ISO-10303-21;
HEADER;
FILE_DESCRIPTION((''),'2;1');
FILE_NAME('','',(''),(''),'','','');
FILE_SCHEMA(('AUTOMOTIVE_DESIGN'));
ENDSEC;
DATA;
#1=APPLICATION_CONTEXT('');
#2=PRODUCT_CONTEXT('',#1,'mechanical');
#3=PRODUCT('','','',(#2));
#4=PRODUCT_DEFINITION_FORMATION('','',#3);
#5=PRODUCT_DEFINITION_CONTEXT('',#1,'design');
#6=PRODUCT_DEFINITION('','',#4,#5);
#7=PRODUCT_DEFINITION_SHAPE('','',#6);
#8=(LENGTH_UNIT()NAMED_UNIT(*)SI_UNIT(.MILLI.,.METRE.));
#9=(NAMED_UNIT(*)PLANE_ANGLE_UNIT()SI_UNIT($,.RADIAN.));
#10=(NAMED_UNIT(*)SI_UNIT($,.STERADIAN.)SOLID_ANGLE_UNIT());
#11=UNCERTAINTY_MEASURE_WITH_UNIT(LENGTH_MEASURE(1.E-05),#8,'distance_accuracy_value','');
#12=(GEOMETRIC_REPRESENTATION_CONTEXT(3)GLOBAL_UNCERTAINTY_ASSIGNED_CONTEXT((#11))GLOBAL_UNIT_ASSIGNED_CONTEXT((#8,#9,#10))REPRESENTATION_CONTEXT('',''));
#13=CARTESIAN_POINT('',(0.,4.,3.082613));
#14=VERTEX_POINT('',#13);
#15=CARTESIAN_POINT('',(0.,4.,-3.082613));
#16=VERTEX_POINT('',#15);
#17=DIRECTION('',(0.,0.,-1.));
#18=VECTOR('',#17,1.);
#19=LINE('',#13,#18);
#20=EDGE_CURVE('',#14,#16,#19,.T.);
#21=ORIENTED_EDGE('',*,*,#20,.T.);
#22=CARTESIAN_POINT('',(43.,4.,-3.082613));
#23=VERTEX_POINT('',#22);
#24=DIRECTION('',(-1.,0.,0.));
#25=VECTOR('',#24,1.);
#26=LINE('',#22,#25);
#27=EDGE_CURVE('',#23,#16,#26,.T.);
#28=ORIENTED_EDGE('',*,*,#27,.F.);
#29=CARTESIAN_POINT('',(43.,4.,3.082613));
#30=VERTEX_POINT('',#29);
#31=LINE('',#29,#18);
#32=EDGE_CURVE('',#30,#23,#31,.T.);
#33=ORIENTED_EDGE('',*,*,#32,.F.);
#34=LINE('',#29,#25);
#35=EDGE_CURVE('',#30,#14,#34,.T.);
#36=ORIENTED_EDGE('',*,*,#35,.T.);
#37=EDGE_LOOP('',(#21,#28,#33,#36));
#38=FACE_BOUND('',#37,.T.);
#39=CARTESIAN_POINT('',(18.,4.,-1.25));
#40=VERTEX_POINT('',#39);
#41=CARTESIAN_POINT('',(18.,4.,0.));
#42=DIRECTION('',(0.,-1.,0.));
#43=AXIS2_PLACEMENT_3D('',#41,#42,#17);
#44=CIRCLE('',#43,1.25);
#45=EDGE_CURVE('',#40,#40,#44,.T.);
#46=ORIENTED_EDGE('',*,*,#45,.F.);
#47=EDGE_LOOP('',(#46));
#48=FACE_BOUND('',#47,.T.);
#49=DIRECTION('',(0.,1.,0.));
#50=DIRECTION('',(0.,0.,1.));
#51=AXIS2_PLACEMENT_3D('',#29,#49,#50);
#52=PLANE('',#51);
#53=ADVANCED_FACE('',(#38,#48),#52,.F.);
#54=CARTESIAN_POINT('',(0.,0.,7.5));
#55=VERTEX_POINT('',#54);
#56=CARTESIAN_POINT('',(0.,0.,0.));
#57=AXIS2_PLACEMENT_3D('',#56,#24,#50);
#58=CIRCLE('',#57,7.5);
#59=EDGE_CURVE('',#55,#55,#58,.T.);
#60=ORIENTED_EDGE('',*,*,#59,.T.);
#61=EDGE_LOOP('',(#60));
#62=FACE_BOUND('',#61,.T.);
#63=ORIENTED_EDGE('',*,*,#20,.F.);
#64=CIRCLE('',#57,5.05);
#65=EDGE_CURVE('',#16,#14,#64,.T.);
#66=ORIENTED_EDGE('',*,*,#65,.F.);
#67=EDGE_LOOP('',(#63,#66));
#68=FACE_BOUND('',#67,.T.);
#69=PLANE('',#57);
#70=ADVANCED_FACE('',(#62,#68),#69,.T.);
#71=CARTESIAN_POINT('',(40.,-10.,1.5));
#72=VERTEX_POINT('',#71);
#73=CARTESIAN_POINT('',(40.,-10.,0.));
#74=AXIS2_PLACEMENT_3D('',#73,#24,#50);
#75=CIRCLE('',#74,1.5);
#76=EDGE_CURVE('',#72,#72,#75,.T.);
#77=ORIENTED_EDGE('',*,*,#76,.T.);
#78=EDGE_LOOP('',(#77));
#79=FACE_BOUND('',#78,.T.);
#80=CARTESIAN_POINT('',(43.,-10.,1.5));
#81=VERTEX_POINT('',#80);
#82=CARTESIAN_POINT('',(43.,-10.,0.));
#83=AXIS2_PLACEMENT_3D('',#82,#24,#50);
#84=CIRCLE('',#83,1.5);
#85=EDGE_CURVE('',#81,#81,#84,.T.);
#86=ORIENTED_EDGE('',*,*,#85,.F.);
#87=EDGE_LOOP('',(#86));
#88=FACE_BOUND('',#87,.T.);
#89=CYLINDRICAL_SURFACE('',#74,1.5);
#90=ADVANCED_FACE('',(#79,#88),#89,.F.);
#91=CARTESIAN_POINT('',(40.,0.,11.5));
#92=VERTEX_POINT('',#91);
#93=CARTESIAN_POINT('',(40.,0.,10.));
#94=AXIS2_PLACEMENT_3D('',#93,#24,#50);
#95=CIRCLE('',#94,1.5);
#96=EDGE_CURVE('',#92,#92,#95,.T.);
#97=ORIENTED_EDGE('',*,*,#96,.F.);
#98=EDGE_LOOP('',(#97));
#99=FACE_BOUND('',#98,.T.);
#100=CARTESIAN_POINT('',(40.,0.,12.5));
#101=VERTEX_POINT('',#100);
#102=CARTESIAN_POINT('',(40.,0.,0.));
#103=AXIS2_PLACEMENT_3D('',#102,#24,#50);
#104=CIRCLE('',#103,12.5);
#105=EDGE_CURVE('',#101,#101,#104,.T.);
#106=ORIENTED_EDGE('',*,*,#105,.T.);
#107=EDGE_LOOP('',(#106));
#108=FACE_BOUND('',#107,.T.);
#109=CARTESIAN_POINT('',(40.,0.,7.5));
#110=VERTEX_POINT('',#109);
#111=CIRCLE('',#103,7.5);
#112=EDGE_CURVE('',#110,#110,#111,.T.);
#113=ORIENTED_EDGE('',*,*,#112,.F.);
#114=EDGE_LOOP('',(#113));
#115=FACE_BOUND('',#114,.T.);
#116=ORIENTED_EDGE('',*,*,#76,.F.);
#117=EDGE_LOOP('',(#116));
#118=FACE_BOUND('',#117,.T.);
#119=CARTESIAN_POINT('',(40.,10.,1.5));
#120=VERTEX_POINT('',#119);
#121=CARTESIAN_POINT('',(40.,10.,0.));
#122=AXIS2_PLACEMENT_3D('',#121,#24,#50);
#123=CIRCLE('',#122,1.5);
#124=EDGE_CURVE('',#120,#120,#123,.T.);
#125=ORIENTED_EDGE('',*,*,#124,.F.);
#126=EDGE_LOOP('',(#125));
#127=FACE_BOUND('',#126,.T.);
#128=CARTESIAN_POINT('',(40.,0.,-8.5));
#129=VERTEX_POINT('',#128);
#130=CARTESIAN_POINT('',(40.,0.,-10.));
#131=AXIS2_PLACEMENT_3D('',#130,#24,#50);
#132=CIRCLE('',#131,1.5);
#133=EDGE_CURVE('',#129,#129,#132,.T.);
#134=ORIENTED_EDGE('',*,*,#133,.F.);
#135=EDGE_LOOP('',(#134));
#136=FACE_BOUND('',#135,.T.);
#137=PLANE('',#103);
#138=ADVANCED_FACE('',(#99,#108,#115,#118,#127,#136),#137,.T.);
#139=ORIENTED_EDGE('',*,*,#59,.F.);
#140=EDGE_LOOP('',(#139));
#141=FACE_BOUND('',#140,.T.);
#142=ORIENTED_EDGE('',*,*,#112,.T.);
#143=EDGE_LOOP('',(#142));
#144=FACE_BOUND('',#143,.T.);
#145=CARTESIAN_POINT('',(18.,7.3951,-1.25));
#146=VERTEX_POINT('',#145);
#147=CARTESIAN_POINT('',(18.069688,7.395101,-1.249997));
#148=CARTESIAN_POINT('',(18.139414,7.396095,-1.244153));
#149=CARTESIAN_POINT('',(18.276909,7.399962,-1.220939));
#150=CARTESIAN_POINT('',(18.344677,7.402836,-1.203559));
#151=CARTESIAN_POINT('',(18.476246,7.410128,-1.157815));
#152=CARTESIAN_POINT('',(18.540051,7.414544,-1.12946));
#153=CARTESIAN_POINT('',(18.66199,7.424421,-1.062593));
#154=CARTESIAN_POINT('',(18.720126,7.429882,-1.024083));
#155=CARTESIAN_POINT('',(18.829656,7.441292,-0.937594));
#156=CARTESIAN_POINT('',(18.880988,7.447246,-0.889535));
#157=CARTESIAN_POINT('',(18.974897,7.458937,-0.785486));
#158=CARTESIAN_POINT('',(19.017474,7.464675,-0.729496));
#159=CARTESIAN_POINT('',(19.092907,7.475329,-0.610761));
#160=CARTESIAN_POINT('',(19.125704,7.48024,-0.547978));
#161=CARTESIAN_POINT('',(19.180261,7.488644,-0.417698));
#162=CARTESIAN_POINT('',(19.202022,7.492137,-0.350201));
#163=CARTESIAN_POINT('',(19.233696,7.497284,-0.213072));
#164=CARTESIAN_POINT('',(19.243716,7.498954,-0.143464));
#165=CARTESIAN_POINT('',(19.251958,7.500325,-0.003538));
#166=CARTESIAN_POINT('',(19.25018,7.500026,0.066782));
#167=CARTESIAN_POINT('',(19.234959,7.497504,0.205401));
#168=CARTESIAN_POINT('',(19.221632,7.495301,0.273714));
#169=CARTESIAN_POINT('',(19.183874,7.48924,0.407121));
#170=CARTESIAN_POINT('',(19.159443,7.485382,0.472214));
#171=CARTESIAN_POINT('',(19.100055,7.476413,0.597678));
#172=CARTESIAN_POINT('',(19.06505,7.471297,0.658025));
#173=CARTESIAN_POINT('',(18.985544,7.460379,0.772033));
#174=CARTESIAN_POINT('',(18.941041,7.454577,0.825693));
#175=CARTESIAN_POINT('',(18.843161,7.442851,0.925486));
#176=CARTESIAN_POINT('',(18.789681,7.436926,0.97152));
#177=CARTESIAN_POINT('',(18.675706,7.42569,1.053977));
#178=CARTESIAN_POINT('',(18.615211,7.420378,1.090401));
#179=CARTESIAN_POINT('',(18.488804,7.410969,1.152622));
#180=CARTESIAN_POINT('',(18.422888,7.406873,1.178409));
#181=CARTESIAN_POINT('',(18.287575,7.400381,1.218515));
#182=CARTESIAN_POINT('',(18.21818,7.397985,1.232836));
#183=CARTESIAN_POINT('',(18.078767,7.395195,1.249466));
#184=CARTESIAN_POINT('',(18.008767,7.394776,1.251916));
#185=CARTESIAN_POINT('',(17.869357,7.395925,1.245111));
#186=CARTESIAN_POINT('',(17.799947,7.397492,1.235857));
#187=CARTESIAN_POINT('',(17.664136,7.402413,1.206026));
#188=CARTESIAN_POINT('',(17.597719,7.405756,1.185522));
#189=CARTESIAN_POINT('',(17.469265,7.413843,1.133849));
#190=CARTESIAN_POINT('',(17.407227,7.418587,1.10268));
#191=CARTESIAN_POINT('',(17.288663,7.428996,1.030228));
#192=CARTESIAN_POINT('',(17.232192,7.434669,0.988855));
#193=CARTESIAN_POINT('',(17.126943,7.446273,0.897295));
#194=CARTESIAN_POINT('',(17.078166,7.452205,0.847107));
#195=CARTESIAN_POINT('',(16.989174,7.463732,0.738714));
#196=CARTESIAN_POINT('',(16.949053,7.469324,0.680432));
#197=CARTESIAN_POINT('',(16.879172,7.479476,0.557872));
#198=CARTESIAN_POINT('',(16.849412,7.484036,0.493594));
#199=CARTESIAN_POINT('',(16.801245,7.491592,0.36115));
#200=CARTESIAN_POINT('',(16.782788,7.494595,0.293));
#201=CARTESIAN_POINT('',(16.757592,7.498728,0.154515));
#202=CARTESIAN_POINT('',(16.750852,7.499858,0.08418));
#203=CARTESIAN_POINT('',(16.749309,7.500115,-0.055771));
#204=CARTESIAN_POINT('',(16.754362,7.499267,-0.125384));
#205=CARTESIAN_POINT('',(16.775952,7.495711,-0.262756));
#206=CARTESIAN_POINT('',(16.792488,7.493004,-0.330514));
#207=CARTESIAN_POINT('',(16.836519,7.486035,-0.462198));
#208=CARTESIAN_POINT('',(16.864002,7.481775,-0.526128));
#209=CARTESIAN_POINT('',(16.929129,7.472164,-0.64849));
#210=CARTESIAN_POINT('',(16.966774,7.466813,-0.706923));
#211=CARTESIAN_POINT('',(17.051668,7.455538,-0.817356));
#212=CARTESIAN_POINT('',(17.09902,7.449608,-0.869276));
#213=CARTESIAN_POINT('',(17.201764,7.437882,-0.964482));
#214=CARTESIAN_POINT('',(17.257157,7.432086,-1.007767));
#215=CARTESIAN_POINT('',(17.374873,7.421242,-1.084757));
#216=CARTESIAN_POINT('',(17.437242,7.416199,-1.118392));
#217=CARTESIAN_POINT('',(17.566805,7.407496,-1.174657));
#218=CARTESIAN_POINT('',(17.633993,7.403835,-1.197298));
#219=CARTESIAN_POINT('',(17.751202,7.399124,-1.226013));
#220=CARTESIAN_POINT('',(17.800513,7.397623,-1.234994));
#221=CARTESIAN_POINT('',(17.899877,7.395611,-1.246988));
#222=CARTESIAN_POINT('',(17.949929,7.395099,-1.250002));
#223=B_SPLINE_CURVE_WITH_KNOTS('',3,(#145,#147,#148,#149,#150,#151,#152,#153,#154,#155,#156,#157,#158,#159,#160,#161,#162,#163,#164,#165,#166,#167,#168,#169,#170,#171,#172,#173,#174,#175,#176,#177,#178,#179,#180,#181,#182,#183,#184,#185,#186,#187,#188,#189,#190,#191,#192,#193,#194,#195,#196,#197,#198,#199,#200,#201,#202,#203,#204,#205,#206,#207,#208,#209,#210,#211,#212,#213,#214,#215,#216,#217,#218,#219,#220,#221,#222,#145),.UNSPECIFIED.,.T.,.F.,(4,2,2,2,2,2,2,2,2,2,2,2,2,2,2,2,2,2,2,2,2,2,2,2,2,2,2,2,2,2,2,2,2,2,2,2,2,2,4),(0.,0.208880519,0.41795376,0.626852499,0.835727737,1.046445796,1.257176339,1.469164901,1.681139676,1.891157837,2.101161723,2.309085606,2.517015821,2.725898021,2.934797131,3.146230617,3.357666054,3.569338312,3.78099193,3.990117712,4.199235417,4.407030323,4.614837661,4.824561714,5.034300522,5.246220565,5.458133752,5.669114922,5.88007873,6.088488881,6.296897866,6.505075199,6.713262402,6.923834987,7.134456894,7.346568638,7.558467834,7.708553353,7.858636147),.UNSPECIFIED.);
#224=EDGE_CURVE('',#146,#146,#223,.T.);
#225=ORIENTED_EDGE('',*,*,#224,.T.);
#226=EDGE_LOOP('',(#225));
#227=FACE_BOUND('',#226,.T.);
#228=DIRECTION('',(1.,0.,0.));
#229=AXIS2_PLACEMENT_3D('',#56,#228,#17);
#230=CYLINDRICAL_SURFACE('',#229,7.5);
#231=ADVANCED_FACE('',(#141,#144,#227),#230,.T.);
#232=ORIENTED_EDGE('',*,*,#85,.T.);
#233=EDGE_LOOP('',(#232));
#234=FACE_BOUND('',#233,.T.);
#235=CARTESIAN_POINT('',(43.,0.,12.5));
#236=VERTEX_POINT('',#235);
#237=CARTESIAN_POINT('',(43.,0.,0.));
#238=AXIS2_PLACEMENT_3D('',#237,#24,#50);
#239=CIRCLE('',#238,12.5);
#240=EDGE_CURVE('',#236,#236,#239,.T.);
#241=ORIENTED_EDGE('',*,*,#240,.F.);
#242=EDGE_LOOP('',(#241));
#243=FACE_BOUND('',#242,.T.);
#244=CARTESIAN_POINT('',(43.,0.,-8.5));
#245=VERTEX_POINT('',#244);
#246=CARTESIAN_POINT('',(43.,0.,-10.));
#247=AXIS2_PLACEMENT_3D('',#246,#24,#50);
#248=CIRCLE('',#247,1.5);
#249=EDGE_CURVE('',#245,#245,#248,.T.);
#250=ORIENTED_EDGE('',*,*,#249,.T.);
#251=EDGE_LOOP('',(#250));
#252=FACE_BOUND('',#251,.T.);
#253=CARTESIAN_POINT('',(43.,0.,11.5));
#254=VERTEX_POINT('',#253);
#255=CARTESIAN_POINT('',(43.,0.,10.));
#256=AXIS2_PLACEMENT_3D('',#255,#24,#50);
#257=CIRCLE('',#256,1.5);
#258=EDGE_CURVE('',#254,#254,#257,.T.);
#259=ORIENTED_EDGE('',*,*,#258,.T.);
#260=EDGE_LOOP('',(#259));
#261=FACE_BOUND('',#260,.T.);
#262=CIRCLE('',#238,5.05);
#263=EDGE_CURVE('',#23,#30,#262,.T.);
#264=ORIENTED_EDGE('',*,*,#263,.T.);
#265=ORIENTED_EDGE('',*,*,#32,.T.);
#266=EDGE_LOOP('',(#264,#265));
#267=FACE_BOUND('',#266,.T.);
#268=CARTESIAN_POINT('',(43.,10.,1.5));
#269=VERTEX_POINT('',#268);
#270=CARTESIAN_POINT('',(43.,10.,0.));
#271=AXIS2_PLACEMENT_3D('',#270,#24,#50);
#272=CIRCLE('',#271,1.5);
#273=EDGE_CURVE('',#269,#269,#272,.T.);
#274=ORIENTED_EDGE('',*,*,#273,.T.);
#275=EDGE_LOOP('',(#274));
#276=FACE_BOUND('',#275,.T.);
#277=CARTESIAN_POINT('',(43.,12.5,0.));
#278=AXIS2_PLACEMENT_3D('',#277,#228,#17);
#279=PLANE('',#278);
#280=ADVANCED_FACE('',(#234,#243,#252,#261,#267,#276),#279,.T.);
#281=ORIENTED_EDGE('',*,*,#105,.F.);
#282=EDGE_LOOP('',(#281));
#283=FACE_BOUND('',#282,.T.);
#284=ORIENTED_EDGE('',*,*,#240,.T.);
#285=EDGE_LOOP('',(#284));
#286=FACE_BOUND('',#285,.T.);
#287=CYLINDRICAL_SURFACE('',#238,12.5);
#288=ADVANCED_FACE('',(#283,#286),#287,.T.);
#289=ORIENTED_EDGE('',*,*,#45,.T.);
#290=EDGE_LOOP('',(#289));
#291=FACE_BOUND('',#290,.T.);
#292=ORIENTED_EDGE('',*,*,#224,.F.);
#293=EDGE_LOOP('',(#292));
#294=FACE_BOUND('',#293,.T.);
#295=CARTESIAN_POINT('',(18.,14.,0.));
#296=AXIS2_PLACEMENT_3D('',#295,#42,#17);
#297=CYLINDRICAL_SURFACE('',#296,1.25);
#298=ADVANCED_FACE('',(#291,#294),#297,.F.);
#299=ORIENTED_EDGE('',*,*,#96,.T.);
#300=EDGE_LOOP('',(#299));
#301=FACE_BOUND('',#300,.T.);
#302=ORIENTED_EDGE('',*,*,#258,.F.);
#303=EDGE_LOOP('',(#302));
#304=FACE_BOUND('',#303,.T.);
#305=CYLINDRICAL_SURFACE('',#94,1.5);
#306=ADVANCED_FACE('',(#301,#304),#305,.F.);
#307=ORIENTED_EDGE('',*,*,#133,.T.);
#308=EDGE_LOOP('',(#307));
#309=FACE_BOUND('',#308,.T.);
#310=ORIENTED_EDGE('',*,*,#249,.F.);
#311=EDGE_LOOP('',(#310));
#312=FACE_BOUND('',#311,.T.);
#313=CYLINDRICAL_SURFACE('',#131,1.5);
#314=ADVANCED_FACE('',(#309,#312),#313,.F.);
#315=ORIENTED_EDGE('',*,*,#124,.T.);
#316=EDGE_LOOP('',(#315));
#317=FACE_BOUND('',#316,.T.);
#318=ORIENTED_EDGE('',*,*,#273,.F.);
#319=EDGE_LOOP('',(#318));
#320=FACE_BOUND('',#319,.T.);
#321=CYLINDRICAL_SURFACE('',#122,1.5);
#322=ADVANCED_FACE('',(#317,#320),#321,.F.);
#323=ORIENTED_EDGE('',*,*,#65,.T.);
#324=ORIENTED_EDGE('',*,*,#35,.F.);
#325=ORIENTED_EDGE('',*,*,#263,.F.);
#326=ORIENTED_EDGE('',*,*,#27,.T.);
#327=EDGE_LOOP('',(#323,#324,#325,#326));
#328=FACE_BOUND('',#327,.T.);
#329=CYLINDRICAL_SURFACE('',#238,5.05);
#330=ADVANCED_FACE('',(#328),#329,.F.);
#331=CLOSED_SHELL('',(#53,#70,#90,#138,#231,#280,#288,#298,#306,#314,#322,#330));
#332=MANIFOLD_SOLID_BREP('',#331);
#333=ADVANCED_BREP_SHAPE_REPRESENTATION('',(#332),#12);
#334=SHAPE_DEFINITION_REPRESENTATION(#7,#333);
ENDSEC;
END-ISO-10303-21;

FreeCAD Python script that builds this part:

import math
import FreeCAD as App
import Part
import Sketcher

doc = App.newDocument("Part")
body = doc.addObject("PartDesign::Body", "Body")

sketch1 = body.newObject("Sketcher::SketchObject", "Sketch")
sketch1.AttachmentSupport = (doc.getObject("XY_Plane"), [""])
sketch1.MapMode = "FlatFace"
sketch1.addGeometry([
    Part.LineSegment(App.Vector(43, 12.5, 0), App.Vector(43, 0, 0)),
    Part.LineSegment(App.Vector(43, 0, 0), App.Vector(40, 0, 0)),
    Part.LineSegment(App.Vector(40, 0, 0), App.Vector(40, 12.5, 0)),
    Part.LineSegment(App.Vector(40, 12.5, 0), App.Vector(43, 12.5, 0)),
], False)
sketch1.addConstraint([
    Sketcher.Constraint("Coincident", 0, 2, 1, 1),
    Sketcher.Constraint("Coincident", 1, 2, 2, 1),
    Sketcher.Constraint("Coincident", 2, 2, 3, 1),
    Sketcher.Constraint("Coincident", 3, 2, 0, 1),
    Sketcher.Constraint("Vertical", 0),
    Sketcher.Constraint("Horizontal", 1),
    Sketcher.Constraint("Vertical", 2),
    Sketcher.Constraint("Horizontal", 3),
    Sketcher.Constraint("PointOnObject", 0, 2, -1),
    Sketcher.Constraint("DistanceX", 1, 2, 1, 1, 3.0),
    Sketcher.Constraint("DistanceY", 0, 2, 0, 1, 12.5),
    Sketcher.Constraint("DistanceX", -1, 1, 0, 2, 43.0),
])
revolution = body.newObject("PartDesign::Revolution", "Revolution")
revolution.Profile = sketch1
revolution.ReferenceAxis = (sketch1, ["H_Axis"])
revolution.Angle = 360

sketch2 = body.newObject("Sketcher::SketchObject", "Sketch001")
sketch2.AttachmentSupport = (doc.getObject("YZ_Plane"), [""])
sketch2.MapMode = "FlatFace"
sketch2.AttachmentOffset = App.Placement(App.Vector(0, 0, 40), App.Rotation())
sketch2.addGeometry(Part.Circle(App.Vector(0, 0, 0), App.Vector(0, 0, 1), 8), False)
sketch2.addConstraint([
    Sketcher.Constraint("Coincident", 0, 3, -1, 1),
    Sketcher.Constraint("Diameter", 0, 15.0),
])
pad1 = body.newObject("PartDesign::Pad", "Pad")
pad1.Profile = sketch2
pad1.Length = 40
pad1.Reversed = True

sketch3 = body.newObject("Sketcher::SketchObject", "Sketch002")
sketch3.AttachmentSupport = (doc.getObject("YZ_Plane"), [""])
sketch3.MapMode = "FlatFace"
sketch3.addGeometry([
    Part.LineSegment(App.Vector(4, 3, 0), App.Vector(4, -3, 0)),
    Part.ArcOfCircle(Part.Circle(App.Vector(0, 0, 0), App.Vector(0, 0, 1), 5), math.radians(38), math.radians(322)),
], False)
sketch3.addConstraint([
    Sketcher.Constraint("Coincident", 0, 1, 1, 1),
    Sketcher.Constraint("Coincident", 1, 2, 0, 2),
    Sketcher.Constraint("Vertical", 0),
    Sketcher.Constraint("Coincident", 1, 3, -1, 1),
    Sketcher.Constraint("Radius", 1, 5.05),
    Sketcher.Constraint("DistanceX", -1, 1, 0, 1, 4.0),
])
pocket1 = body.newObject("PartDesign::Pocket", "Pocket")
pocket1.Profile = sketch3
pocket1.Type = "ThroughAll"
pocket1.Reversed = True

sketch4 = body.newObject("Sketcher::SketchObject", "Sketch003")
sketch4.AttachmentSupport = (doc.getObject("YZ_Plane"), [""])
sketch4.MapMode = "FlatFace"
sketch4.AttachmentOffset = App.Placement(App.Vector(0, 0, 40), App.Rotation())
sketch4.addGeometry([
    Part.Circle(App.Vector(0, 10, 0), App.Vector(0, 0, 1), 1.5),
    Part.Circle(App.Vector(-10, 0, 0), App.Vector(0, 0, 1), 1.5),
    Part.Circle(App.Vector(0, -10, 0), App.Vector(0, 0, 1), 1.5),
    Part.Circle(App.Vector(10, 0, 0), App.Vector(0, 0, 1), 1.5),
], False)
sketch4.addConstraint([
    Sketcher.Constraint("Equal", 0, 1),
    Sketcher.Constraint("Equal", 1, 2),
    Sketcher.Constraint("Equal", 2, 3),
    Sketcher.Constraint("Symmetric", 0, 3, 2, 3, -1, 1),
    Sketcher.Constraint("Symmetric", 1, 3, 3, 3, -1, 1),
    Sketcher.Constraint("PointOnObject", 0, 3, -2),
    Sketcher.Constraint("PointOnObject", 1, 3, -1),
    Sketcher.Constraint("Diameter", 0, 3.0),
    Sketcher.Constraint("DistanceY", -1, 1, 0, 3, 10.0),
    Sketcher.Constraint("DistanceX", 1, 3, -1, 1, 10.0),
])
doc.recompute()
hole = body.newObject("PartDesign::Hole", "Hole")
hole.Profile = sketch4
hole.ThreadType = "None"
hole.Diameter = 3
hole.DepthType = "ThroughAll"
hole.Reversed = True

sketch5 = body.newObject("Sketcher::SketchObject", "Sketch004")
sketch5.AttachmentSupport = (doc.getObject("XZ_Plane"), [""])
sketch5.MapMode = "FlatFace"
sketch5.AttachmentOffset = App.Placement(App.Vector(0, 0, -4), App.Rotation())
sketch5.addGeometry(Part.Circle(App.Vector(18, 0, 0), App.Vector(0, 0, 1), 1.2), False)
sketch5.addConstraint([
    Sketcher.Constraint("PointOnObject", 0, 3, -1),
    Sketcher.Constraint("Diameter", 0, 2.5),
    Sketcher.Constraint("DistanceX", -1, 1, 0, 3, 18.0),
])
pocket2 = body.newObject("PartDesign::Pocket", "Pocket001")
pocket2.Profile = sketch5
pocket2.Length = 10

doc.recompute()
